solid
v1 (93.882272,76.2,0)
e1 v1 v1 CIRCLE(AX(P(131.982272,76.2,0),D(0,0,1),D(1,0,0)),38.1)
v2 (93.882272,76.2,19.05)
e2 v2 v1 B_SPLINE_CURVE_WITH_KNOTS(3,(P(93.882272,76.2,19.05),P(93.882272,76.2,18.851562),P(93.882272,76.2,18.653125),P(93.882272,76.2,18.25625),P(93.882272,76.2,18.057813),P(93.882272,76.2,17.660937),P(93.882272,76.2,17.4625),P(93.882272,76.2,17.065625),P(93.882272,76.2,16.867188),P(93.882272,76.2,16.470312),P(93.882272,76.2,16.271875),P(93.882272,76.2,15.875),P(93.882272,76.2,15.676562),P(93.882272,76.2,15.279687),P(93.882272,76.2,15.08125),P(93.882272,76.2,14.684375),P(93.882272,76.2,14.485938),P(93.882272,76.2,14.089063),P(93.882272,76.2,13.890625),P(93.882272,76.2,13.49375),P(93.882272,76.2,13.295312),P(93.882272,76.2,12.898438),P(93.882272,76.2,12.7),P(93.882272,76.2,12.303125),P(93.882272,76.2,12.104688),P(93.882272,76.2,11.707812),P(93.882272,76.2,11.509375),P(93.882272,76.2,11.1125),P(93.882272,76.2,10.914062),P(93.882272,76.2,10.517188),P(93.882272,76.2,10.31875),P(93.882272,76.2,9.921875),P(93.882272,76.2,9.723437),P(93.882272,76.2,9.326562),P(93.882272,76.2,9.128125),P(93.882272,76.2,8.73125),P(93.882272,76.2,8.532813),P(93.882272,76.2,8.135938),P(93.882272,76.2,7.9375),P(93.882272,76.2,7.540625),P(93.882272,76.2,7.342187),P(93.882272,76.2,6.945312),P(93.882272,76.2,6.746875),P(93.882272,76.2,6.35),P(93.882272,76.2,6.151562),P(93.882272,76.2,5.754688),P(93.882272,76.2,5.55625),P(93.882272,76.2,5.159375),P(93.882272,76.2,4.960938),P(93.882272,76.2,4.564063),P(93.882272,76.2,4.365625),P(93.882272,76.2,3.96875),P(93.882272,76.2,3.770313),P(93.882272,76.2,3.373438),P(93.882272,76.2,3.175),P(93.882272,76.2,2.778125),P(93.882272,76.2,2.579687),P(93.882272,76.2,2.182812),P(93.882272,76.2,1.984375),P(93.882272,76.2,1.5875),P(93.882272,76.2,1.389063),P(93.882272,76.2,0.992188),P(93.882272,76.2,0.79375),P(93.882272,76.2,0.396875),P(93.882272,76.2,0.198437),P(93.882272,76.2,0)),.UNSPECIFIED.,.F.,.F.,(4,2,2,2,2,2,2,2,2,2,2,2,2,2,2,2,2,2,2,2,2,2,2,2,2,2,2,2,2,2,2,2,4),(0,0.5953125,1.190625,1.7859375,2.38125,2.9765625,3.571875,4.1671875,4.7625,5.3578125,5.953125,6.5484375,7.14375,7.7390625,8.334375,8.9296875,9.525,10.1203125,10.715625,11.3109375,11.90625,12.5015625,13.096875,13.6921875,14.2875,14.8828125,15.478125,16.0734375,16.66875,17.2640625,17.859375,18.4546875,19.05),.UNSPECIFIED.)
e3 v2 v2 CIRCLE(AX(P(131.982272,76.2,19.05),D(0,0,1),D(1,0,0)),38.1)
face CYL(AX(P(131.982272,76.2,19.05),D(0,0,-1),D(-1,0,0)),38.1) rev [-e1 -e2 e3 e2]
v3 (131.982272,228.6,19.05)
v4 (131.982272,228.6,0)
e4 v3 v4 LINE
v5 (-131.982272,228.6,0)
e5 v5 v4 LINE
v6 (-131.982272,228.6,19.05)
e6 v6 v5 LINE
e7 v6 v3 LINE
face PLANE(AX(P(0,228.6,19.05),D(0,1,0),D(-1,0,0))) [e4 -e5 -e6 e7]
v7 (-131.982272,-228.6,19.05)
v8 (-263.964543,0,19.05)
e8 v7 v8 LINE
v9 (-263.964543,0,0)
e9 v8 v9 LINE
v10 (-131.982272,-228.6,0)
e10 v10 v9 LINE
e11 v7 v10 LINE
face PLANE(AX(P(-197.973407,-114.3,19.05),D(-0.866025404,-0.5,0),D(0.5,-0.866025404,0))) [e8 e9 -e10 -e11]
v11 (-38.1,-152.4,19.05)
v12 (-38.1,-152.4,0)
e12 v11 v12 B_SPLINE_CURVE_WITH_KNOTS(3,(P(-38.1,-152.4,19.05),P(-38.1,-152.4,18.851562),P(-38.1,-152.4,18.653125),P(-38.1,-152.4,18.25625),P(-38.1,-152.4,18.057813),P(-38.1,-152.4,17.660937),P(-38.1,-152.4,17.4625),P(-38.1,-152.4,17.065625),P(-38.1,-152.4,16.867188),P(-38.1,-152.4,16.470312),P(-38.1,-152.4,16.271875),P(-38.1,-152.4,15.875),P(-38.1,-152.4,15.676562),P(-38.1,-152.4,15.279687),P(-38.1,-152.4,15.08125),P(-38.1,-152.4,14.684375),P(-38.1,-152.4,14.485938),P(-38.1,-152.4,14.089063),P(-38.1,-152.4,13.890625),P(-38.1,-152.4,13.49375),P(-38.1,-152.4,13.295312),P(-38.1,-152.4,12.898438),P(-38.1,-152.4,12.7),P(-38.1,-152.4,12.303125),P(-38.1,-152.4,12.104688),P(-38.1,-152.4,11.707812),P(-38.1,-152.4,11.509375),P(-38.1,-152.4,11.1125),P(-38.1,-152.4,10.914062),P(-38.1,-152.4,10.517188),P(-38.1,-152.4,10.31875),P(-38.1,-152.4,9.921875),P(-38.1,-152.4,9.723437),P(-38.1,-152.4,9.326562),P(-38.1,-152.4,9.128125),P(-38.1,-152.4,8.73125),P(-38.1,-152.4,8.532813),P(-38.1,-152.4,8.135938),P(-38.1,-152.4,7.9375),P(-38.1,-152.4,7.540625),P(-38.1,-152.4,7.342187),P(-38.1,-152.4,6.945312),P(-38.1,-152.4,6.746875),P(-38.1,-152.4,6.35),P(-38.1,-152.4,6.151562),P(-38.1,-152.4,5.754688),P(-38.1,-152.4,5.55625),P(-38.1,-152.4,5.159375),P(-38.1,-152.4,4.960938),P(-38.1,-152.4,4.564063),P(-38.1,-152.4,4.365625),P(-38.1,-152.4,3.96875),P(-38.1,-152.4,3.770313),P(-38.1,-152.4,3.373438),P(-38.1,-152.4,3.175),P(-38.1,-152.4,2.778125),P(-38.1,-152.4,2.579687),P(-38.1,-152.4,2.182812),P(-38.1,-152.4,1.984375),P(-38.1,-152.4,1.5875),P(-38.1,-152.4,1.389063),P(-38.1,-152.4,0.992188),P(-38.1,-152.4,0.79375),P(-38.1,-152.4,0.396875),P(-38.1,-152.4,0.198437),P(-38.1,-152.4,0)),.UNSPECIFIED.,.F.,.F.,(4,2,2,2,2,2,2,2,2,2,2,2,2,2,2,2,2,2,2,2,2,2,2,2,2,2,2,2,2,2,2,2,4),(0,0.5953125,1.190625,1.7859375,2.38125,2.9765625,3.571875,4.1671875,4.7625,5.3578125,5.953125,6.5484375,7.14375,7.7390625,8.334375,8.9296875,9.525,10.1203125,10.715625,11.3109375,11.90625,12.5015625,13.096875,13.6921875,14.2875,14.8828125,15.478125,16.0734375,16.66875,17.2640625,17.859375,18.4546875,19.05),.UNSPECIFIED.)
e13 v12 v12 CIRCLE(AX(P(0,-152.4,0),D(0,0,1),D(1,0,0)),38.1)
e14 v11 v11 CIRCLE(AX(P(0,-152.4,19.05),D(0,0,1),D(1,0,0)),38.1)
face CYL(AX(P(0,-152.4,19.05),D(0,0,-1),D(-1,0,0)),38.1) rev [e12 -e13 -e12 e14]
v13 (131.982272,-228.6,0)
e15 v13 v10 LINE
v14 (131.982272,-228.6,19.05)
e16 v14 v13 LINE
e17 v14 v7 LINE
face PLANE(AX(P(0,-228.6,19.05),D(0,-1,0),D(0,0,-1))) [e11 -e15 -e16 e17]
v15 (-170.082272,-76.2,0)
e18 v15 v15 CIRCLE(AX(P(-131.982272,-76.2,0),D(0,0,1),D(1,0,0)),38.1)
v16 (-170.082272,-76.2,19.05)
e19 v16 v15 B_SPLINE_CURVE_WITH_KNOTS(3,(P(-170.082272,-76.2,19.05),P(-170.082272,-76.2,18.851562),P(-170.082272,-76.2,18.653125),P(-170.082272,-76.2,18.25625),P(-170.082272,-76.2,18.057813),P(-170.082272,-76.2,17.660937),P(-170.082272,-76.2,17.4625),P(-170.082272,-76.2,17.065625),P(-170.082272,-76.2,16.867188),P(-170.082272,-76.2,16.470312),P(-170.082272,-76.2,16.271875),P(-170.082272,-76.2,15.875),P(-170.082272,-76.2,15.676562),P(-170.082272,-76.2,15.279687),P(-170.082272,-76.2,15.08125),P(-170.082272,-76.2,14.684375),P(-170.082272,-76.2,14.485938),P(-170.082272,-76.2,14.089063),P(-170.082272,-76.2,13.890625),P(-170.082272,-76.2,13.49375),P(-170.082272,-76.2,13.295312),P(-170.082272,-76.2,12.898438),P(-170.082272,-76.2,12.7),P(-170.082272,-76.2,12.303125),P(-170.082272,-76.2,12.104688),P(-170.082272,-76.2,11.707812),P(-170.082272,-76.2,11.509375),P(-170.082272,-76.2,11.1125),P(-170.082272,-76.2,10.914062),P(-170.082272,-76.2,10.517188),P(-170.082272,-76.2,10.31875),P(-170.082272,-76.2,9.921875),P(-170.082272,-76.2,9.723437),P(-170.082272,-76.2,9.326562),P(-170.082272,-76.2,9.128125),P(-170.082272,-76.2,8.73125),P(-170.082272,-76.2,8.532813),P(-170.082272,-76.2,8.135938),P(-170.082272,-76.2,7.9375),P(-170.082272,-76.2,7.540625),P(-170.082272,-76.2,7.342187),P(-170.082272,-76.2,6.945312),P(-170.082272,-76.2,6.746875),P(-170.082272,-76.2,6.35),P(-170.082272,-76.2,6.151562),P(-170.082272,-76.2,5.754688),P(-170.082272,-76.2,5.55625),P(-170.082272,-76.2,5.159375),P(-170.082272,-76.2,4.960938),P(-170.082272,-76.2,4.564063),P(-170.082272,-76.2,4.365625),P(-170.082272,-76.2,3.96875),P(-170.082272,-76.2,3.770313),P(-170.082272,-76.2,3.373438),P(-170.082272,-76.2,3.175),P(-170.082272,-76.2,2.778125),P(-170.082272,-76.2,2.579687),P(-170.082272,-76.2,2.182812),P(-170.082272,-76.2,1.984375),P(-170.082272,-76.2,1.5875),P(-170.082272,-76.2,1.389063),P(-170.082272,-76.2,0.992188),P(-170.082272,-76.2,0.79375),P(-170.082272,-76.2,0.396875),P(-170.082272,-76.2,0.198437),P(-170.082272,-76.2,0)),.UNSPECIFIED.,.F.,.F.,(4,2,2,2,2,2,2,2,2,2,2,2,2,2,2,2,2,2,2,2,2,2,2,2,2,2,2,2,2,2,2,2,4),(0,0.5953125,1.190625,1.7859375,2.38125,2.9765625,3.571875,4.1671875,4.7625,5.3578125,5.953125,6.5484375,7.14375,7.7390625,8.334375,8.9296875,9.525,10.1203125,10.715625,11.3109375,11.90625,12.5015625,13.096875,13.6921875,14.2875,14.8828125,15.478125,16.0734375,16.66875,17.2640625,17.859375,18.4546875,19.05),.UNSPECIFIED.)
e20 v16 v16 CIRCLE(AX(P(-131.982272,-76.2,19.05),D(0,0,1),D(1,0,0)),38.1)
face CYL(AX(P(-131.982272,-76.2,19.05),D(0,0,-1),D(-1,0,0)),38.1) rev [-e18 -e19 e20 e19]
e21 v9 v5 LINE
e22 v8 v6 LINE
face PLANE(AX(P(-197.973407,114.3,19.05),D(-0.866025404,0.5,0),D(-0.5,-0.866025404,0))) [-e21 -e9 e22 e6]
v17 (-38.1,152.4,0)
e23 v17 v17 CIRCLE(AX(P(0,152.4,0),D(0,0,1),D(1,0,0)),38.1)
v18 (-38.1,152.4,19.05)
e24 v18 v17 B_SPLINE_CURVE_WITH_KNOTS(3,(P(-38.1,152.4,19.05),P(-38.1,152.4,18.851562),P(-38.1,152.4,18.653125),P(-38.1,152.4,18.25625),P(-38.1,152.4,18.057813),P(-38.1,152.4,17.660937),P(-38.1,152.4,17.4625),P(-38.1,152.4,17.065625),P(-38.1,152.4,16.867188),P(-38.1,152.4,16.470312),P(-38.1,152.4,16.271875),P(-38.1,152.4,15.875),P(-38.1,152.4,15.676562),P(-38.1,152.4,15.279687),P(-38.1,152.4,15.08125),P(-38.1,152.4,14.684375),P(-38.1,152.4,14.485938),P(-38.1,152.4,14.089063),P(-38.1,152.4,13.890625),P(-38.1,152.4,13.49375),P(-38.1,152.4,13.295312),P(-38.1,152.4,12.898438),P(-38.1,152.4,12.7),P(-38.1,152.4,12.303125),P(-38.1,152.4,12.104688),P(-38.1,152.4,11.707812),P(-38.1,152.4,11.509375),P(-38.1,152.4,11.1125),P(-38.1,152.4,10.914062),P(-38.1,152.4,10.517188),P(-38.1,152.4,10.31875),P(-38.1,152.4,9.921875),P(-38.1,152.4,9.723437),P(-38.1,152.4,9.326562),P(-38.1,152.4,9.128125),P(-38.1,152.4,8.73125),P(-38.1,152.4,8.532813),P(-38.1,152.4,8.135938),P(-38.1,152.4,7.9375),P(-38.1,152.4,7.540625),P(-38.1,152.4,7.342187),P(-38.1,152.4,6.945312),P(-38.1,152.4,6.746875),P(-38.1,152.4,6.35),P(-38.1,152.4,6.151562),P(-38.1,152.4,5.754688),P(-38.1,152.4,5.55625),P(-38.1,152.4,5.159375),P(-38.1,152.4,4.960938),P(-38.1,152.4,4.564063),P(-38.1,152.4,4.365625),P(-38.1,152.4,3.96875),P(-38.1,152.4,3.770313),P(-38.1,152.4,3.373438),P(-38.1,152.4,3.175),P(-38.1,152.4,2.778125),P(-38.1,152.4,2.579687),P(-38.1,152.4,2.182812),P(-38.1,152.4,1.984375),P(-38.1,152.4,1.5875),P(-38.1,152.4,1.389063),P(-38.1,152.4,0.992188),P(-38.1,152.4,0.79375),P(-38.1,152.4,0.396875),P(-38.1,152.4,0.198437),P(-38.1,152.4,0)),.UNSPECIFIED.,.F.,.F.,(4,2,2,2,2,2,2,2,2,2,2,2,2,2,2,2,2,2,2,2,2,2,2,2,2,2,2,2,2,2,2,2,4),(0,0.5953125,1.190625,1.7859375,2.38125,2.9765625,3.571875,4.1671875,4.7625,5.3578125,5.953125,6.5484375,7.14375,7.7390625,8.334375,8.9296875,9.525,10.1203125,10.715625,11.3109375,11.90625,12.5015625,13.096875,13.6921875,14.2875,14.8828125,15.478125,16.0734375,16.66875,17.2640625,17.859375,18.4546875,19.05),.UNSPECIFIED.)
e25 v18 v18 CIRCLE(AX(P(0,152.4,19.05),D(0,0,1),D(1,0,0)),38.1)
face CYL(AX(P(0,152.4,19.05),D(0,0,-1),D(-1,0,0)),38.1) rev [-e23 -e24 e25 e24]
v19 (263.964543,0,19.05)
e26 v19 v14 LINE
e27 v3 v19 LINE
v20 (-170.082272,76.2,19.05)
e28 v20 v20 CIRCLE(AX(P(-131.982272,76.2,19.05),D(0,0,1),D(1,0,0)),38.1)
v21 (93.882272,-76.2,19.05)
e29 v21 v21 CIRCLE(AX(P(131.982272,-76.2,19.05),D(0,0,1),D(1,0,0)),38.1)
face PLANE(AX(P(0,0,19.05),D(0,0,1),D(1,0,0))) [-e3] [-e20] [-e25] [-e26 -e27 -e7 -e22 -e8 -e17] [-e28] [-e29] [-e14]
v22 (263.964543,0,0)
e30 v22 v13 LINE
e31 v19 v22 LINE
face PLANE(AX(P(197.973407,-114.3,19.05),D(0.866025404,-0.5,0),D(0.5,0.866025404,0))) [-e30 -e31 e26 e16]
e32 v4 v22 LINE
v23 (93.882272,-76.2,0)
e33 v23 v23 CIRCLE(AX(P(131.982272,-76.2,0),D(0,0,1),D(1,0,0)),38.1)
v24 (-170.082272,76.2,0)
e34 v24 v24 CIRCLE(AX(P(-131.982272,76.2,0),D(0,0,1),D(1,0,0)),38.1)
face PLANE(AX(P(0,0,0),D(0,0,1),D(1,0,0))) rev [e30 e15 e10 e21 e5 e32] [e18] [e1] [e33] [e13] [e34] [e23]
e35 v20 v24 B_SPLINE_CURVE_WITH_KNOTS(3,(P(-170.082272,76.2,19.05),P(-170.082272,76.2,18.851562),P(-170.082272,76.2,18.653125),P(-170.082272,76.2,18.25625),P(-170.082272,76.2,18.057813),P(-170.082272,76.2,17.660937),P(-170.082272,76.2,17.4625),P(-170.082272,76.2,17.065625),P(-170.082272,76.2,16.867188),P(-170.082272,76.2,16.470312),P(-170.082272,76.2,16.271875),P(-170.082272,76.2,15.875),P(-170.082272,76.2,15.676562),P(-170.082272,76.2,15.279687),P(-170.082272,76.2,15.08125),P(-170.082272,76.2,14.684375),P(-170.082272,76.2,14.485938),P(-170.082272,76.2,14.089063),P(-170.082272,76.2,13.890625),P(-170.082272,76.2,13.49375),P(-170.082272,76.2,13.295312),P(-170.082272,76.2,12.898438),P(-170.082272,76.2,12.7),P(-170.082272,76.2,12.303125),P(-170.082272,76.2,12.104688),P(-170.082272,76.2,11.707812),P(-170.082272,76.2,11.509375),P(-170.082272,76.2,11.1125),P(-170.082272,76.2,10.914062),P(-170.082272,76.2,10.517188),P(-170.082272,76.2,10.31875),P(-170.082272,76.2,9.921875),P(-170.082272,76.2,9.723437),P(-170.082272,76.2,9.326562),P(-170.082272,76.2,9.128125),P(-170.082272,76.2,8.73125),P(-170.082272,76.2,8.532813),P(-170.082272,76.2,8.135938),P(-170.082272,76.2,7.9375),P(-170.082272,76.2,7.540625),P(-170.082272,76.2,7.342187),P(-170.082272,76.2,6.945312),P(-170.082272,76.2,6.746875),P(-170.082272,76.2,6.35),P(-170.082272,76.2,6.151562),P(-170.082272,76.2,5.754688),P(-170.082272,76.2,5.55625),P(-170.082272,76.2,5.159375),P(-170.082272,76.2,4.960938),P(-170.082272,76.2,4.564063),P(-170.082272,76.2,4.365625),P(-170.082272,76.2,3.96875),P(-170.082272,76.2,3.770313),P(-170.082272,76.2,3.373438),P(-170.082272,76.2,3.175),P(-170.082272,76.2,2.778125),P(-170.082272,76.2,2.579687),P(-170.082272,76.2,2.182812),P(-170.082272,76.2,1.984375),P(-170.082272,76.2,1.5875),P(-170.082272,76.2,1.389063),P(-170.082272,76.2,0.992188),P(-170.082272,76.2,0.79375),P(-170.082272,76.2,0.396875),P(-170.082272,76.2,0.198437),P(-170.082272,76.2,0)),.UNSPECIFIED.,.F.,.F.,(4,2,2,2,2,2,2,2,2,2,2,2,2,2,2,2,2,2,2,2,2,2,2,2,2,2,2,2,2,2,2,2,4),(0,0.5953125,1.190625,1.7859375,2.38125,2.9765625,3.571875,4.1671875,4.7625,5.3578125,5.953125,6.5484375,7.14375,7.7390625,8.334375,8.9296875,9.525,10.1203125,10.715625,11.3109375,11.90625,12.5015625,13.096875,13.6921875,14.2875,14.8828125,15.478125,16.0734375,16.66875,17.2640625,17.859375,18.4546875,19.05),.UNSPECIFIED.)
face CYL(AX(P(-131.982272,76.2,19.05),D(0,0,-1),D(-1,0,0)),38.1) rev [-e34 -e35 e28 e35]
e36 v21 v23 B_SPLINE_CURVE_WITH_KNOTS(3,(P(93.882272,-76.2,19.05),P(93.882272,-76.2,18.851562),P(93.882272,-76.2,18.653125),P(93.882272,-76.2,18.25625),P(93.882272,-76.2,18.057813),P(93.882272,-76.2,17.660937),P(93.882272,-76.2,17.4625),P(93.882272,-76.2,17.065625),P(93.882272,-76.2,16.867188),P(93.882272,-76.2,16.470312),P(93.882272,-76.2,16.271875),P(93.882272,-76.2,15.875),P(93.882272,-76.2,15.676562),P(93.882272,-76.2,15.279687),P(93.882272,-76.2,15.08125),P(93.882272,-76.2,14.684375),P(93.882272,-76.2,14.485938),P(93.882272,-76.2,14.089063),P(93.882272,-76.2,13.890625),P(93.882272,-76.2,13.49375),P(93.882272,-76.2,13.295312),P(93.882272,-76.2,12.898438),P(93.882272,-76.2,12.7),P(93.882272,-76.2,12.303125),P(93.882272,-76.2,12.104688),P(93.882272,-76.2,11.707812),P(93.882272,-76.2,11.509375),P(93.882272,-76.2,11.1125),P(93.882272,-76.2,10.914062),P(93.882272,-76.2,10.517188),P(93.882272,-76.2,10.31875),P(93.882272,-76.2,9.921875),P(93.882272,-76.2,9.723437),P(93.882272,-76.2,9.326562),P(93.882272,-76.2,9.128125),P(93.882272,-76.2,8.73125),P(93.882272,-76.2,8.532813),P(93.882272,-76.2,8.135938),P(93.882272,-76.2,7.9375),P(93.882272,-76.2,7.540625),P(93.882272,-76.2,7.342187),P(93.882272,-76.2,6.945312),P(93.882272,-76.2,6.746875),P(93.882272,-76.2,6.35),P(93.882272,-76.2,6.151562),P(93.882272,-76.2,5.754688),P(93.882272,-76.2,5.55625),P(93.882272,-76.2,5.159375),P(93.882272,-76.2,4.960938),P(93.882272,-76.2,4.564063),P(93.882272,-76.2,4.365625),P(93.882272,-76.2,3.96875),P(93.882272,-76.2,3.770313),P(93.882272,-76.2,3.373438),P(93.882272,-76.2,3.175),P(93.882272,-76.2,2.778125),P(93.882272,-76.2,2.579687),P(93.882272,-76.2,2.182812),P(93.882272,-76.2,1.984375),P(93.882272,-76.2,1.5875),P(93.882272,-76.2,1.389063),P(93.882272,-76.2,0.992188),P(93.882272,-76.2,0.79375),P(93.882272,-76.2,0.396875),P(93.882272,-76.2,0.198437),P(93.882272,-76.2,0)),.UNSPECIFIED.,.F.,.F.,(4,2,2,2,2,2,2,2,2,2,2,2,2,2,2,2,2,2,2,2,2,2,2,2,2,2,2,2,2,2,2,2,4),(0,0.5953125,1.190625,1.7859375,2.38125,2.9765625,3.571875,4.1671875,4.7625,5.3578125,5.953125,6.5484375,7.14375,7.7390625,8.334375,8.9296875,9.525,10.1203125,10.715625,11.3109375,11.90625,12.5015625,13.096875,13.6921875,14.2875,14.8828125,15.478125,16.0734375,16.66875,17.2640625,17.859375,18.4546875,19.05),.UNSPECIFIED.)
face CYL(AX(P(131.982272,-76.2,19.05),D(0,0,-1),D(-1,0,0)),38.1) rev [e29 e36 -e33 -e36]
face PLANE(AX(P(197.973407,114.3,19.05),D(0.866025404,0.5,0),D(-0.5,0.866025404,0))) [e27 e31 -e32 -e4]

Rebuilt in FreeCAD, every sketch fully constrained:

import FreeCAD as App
import Part
import Sketcher

V = App.Vector
Q = App.Units.Quantity


def add_polygon(sketch, points):
    """Adds a closed chain of lines whose ends are joined by coincident constraints."""
    first, n = sketch.GeometryCount, len(points)
    for a, b in zip(points, points[1:] + points[:1]):
        sketch.addGeometry(Part.LineSegment(App.Vector(*a, 0), App.Vector(*b, 0)), False)
    for i in range(n):
        sketch.addConstraint(Sketcher.Constraint("Coincident", first + i, 2, first + (i + 1) % n, 1))

doc = App.newDocument("Part")
body = doc.addObject("PartDesign::Body", "Body")

# Sketch on XY plane
sketch1 = doc.addObject("Sketcher::SketchObject", "Sketch")
body.addObject(sketch1)
sketch1.AttachmentSupport = (doc.XY_Plane, [""])
sketch1.MapMode = "FlatFace"
add_polygon(sketch1, [(-132, 229), (-264, 0), (-132, -229), (132, -229), (264, 0), (132, 229)])  # lines 0-5
sketch1.addGeometry(Part.Circle(V(-132, 76, 0), V(0, 0, 1), 38), False)  # 6
sketch1.addGeometry(Part.Circle(V(-132, -76, 0), V(0, 0, 1), 38), False)  # 7
sketch1.addGeometry(Part.Circle(V(0, 152, 0), V(0, 0, 1), 38), False)  # 8
sketch1.addGeometry(Part.Circle(V(0, -152, 0), V(0, 0, 1), 38), False)  # 9
sketch1.addGeometry(Part.Circle(V(132, 76, 0), V(0, 0, 1), 38), False)  # 10
sketch1.addGeometry(Part.Circle(V(132, -76, 0), V(0, 0, 1), 38), False)  # 11
sketch1.addConstraint([
    Sketcher.Constraint("Horizontal", 2),
    Sketcher.Constraint("Horizontal", 5),
    Sketcher.Constraint("Equal", 6, 7),
    Sketcher.Constraint("Equal", 7, 8),
    Sketcher.Constraint("Equal", 8, 9),
    Sketcher.Constraint("Equal", 9, 10),
    Sketcher.Constraint("Equal", 10, 11),
    Sketcher.Constraint("Symmetric", 8, 3, 9, 3, -1, 1),
    Sketcher.Constraint("Symmetric", 7, 3, 10, 3, -1, 1),
    Sketcher.Constraint("Symmetric", 6, 3, 11, 3, -1, 1),
    Sketcher.Constraint("Symmetric", 0, 2, 3, 2, -1, 1),
    Sketcher.Constraint("Symmetric", 1, 2, 4, 2, -1, 1),
    Sketcher.Constraint("Symmetric", 6, 3, 10, 3, -2),
    Sketcher.Constraint("PointOnObject", 8, 3, -2),
    Sketcher.Constraint("PointOnObject", 0, 2, -1),
    Sketcher.Constraint("Parallel", 0, 3),
    Sketcher.Constraint("Vertical", 7, 3, 1, 2),
    Sketcher.Constraint("Vertical", 11, 3, 2, 2),
    Sketcher.Constraint("Diameter", 6, Q("3 in")),
    Sketcher.Constraint("DistanceY", -1, 1, 6, 3, Q("3 in")),
    Sketcher.Constraint("DistanceY", -1, 1, 8, 3, Q("6 in")),
    Sketcher.Constraint("DistanceY", 1, 2, -1, 1, Q("9 in")),
    Sketcher.Constraint("Angle", 0, Q("-120 deg")),
    Sketcher.Constraint("DistanceX", 2, 1, 2, 2, 263.964543),
])
pad1 = doc.addObject("PartDesign::Pad", "Pad")
body.addObject(pad1)
pad1.Profile = sketch1
pad1.Length = Q("0.75 in")

doc.recompute()
